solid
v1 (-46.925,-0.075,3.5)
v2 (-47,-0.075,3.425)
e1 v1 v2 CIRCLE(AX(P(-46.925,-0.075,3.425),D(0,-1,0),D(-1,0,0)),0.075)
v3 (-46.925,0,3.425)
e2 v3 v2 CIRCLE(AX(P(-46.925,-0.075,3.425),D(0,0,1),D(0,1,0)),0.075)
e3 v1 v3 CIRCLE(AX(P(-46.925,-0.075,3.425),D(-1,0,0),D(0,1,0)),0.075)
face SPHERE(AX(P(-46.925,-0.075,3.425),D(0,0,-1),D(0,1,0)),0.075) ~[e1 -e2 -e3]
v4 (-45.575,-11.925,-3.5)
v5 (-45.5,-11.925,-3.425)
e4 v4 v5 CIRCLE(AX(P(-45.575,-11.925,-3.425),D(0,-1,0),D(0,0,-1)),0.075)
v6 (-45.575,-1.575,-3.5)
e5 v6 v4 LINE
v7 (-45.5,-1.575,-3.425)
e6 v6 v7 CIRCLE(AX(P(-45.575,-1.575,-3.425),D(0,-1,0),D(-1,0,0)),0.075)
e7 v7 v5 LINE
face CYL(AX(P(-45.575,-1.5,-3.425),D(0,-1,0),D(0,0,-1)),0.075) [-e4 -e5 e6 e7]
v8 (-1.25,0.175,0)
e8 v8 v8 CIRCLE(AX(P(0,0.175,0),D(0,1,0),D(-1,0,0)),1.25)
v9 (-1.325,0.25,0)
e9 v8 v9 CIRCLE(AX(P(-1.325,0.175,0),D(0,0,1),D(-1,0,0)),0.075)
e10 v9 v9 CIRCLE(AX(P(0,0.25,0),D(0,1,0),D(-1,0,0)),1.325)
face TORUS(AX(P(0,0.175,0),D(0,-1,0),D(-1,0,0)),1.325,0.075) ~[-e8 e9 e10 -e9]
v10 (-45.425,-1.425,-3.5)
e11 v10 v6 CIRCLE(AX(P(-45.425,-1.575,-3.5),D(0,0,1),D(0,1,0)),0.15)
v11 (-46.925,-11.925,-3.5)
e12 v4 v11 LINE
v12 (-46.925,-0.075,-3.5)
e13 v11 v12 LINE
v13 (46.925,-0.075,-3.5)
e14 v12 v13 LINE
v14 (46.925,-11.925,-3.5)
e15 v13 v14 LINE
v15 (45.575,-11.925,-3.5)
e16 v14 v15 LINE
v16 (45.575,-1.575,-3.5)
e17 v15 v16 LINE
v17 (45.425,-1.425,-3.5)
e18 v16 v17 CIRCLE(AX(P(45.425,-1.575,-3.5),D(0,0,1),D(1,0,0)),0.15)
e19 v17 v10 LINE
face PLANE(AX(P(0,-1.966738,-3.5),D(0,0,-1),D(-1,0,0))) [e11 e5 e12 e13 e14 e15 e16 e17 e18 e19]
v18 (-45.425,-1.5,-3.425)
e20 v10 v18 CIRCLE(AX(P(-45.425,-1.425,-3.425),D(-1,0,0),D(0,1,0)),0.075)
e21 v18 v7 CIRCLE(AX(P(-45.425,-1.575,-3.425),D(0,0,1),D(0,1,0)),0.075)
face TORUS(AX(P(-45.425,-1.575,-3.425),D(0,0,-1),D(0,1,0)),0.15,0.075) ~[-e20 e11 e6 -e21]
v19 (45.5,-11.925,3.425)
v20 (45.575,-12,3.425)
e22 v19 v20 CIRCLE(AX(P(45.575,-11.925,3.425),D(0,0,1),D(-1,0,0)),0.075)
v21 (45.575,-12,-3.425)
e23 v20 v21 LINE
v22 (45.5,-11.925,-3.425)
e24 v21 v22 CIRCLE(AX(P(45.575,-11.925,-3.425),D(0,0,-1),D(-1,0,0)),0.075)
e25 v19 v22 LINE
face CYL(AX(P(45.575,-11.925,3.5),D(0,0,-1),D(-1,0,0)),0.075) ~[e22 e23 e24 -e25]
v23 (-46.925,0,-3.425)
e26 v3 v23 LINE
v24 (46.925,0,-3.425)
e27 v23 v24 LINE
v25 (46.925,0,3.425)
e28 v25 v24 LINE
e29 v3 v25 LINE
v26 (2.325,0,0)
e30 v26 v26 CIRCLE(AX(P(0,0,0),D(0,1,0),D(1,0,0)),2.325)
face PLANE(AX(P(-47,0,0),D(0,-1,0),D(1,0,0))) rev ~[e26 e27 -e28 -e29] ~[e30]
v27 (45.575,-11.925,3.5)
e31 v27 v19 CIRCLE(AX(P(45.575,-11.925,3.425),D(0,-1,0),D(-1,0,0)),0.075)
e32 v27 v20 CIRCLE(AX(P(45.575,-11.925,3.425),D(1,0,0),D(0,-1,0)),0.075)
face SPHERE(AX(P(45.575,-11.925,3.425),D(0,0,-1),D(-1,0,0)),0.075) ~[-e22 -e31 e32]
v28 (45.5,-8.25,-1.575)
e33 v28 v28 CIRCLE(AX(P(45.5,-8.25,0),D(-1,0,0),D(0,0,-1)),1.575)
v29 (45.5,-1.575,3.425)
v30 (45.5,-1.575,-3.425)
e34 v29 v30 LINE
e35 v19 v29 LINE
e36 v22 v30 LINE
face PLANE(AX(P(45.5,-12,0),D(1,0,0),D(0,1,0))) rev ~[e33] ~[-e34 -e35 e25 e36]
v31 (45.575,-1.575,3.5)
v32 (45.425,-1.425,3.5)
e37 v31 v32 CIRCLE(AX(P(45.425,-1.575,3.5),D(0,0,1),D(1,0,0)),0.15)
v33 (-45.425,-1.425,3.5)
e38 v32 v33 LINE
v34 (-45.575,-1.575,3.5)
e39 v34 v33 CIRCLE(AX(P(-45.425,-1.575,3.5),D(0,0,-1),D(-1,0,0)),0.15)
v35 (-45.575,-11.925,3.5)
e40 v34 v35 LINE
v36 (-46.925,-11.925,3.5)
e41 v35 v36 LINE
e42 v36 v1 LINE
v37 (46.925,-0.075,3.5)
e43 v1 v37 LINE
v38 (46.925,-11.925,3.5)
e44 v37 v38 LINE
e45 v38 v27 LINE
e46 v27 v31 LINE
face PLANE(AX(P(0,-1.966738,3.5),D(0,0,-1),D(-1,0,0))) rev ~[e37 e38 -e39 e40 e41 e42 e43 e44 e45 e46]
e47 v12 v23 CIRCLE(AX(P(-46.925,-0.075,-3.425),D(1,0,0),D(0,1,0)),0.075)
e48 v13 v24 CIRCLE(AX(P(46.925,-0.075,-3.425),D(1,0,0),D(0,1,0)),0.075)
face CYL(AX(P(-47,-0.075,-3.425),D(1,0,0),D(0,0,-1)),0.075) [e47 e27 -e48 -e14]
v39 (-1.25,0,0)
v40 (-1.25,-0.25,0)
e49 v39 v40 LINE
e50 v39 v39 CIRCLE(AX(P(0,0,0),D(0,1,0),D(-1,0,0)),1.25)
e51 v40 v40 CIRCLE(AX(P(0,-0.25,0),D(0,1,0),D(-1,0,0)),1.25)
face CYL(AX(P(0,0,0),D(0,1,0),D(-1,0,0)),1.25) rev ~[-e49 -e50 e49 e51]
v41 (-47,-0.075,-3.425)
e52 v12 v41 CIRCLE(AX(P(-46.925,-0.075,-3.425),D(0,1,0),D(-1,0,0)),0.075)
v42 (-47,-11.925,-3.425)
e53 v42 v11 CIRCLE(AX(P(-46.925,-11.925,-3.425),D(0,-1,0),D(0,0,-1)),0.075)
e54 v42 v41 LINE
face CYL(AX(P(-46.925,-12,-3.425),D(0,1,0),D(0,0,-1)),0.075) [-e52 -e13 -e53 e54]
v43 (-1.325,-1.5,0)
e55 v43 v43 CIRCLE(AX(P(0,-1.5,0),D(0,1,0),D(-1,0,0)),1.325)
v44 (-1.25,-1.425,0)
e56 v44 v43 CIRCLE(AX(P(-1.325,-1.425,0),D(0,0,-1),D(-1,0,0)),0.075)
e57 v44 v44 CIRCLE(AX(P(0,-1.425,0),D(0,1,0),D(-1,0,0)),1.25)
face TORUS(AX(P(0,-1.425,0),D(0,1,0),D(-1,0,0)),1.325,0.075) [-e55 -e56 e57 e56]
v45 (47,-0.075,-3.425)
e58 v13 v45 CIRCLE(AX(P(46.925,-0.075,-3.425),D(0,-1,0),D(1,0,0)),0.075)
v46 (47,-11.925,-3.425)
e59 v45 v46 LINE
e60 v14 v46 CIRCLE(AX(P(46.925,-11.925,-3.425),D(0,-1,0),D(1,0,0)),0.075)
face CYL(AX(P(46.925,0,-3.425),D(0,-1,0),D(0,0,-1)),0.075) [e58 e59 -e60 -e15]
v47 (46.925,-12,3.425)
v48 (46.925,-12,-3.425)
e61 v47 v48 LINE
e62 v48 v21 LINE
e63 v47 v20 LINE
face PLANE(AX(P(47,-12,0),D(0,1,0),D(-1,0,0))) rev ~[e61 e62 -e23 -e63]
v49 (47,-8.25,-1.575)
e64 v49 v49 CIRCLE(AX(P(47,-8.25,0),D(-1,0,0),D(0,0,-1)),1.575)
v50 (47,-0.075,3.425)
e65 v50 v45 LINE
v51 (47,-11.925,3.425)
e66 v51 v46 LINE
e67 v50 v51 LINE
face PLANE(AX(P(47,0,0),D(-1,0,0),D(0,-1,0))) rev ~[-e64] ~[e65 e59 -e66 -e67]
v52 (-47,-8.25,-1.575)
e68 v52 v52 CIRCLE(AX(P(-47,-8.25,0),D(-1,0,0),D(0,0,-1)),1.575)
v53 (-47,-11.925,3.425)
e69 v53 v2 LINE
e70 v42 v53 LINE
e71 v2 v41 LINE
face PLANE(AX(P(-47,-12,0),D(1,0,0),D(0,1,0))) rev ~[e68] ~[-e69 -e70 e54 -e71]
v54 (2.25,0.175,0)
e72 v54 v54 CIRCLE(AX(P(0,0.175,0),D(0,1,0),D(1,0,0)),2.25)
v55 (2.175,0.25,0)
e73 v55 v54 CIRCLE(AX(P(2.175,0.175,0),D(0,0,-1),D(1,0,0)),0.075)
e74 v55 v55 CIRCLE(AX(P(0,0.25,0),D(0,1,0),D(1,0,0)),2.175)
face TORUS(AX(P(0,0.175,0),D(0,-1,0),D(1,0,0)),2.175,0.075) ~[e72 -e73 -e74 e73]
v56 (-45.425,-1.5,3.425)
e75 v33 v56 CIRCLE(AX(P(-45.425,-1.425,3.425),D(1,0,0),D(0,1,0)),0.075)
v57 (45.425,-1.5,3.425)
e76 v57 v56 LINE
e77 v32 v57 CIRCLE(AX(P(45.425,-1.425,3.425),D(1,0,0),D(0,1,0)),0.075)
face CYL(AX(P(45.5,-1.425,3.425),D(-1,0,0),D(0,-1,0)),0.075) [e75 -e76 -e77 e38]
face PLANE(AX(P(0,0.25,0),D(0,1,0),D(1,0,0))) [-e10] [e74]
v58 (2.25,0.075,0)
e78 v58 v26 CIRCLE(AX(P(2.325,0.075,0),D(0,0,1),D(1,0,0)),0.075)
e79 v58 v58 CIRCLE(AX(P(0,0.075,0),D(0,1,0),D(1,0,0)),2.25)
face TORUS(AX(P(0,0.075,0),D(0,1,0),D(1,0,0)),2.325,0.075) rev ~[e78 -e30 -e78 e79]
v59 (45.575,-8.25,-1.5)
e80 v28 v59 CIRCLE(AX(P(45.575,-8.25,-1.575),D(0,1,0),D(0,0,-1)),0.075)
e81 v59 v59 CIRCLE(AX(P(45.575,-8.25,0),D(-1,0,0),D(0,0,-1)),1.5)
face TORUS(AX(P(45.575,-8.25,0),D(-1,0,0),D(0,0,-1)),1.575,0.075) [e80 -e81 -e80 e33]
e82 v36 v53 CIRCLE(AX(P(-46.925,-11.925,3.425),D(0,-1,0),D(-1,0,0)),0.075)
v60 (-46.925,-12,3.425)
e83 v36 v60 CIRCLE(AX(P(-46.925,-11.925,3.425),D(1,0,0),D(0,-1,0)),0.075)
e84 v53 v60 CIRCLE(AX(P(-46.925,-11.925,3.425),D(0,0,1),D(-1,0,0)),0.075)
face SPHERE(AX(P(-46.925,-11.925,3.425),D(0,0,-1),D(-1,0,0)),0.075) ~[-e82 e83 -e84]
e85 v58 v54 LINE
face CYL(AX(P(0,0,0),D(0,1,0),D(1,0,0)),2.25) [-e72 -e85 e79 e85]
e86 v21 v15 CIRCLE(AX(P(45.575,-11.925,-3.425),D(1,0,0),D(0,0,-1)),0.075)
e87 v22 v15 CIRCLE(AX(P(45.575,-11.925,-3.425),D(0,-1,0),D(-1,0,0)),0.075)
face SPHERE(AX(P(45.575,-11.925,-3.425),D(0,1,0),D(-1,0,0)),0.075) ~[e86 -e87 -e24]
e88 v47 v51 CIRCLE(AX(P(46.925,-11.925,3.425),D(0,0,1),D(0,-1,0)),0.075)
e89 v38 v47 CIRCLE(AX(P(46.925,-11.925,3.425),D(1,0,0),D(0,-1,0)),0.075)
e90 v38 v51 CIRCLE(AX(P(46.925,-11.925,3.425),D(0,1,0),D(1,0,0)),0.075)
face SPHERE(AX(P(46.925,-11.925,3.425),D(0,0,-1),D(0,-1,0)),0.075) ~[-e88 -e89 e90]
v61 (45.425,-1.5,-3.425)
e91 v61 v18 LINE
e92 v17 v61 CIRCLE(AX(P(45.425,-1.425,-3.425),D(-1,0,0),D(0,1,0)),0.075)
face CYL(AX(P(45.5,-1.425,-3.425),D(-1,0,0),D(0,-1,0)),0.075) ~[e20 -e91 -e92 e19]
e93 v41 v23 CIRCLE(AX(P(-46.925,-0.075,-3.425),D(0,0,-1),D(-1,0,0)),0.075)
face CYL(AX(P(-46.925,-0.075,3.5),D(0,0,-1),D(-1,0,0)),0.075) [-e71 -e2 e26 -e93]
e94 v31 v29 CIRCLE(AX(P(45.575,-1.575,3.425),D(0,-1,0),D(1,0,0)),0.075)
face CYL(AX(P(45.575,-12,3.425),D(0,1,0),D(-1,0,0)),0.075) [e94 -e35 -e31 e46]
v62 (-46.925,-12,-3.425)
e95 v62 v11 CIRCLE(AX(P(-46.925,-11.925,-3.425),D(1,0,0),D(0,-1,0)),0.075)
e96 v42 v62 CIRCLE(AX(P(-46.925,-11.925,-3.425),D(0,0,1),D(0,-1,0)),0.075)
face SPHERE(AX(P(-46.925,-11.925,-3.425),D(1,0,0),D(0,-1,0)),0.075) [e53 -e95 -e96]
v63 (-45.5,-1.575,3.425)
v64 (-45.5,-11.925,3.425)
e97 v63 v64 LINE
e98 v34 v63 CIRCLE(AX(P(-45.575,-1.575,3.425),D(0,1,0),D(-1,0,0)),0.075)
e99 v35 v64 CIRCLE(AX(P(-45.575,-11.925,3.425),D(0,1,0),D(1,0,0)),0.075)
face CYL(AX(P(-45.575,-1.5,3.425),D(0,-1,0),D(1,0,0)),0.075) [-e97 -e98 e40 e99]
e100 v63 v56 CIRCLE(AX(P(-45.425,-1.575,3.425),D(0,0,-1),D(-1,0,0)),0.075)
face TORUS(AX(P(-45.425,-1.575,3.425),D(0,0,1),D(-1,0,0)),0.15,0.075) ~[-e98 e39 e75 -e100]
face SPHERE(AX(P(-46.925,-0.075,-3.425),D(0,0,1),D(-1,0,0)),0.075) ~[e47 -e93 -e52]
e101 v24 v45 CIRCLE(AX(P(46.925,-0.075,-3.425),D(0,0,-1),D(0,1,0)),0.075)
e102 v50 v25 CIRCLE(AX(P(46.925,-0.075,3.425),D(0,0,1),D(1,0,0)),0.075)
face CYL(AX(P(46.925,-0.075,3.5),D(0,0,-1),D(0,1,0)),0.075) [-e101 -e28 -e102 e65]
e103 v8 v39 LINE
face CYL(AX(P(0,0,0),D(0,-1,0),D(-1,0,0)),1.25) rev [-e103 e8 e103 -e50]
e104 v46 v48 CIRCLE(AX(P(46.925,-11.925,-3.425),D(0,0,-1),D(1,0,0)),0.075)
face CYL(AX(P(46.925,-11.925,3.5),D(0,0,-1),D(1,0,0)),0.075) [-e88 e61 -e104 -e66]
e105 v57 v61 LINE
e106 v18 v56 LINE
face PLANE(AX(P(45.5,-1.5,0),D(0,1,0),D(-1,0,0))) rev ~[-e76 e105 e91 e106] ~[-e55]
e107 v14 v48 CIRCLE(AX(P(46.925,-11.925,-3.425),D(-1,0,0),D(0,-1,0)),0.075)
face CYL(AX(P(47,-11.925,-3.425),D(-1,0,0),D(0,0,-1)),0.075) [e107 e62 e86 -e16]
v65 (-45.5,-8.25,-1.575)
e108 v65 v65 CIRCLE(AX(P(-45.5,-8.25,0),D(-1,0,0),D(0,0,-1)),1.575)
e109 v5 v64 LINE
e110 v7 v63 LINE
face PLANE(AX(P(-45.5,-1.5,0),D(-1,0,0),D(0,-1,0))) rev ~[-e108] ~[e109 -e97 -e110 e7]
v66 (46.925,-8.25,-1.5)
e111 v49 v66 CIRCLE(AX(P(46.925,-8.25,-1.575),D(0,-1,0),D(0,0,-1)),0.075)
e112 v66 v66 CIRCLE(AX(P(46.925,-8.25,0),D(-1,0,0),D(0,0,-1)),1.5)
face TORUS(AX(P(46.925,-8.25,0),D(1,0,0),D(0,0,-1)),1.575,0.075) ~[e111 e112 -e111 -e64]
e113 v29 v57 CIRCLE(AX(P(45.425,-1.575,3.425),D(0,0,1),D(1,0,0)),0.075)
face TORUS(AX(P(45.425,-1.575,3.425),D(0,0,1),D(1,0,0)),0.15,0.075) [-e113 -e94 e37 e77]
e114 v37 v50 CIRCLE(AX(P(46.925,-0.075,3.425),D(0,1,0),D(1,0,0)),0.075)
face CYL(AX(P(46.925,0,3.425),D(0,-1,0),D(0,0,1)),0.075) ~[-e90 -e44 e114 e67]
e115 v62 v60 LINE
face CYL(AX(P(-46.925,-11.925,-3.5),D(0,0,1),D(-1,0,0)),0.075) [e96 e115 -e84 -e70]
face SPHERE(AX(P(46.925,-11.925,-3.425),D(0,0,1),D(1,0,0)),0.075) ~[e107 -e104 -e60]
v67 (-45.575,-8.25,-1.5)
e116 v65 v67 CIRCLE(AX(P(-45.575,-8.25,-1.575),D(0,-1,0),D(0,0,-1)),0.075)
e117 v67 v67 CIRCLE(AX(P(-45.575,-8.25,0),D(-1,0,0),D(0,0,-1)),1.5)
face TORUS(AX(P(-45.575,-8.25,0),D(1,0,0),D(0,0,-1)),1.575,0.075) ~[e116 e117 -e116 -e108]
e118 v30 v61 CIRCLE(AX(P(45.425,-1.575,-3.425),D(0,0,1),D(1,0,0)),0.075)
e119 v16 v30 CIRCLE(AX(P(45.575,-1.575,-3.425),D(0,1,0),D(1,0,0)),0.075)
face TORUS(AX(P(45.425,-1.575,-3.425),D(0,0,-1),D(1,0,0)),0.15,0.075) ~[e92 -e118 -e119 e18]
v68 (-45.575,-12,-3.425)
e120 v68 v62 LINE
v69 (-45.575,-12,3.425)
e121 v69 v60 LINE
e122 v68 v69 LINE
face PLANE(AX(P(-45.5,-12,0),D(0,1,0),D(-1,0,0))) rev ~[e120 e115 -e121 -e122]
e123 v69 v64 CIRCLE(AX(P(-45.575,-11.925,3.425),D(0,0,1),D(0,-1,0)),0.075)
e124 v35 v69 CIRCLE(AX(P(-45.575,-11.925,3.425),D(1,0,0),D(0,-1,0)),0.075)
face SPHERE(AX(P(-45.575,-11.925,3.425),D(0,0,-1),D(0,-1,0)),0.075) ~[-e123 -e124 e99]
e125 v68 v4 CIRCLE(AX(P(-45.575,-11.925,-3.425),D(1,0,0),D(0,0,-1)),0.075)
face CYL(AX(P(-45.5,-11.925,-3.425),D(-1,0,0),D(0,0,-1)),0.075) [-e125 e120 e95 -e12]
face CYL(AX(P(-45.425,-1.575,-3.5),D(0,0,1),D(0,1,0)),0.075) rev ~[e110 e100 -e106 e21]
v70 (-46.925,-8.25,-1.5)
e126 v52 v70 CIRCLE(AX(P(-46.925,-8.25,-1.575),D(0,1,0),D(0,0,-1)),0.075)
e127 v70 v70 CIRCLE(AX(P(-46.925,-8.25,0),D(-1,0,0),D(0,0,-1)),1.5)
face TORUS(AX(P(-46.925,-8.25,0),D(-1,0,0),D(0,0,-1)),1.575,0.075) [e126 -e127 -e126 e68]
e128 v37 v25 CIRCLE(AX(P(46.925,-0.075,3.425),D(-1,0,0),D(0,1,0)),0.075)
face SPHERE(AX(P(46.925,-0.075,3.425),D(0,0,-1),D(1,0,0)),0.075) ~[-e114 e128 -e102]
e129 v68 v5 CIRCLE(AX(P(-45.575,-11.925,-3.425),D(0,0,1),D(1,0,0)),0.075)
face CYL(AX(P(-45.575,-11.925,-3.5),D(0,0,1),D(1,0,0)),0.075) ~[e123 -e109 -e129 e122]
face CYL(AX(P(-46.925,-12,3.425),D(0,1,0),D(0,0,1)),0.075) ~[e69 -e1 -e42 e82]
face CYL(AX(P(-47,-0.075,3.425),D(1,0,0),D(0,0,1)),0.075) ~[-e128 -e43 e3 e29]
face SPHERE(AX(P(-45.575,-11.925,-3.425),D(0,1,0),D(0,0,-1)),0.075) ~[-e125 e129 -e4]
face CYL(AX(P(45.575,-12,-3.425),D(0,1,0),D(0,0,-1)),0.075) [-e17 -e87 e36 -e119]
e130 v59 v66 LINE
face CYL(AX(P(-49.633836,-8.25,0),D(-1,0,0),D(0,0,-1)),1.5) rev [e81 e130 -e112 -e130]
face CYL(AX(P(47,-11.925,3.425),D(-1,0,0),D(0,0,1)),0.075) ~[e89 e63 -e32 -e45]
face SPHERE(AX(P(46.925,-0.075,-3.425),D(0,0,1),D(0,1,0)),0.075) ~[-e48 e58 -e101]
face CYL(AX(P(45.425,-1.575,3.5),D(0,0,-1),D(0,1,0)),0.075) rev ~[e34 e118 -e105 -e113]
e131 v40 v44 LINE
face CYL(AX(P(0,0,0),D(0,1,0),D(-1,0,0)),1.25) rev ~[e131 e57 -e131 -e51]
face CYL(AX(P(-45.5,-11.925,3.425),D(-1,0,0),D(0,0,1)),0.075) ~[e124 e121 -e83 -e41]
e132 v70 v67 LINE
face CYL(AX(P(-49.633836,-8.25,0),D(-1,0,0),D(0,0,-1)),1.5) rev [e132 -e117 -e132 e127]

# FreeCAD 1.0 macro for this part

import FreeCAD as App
import Part
import Sketcher
Q = App.Units.Quantity


def add_polygon(sketch, points):
    """Adds a closed chain of lines whose ends are joined by coincident constraints."""
    first, n = sketch.GeometryCount, len(points)
    for a, b in zip(points, points[1:] + points[:1]):
        sketch.addGeometry(Part.LineSegment(App.Vector(*a, 0), App.Vector(*b, 0)), False)
    for i in range(n):
        sketch.addConstraint(Sketcher.Constraint("Coincident", first + i, 2, first + (i + 1) % n, 1))

doc = App.newDocument("Part")
body = doc.addObject("PartDesign::Body", "Body")

sketch1 = body.newObject("Sketcher::SketchObject", "Sketch")
sketch1.AttachmentSupport = (doc.getObject("XY_Plane"), [""])
sketch1.MapMode = "FlatFace"
add_polygon(sketch1, [(-47, 0), (-47, -12), (-45.5, -12), (-45.5, -1.5), (45.5, -1.5), (45.5, -12), (47, -12), (47, 0)])
sketch1.addConstraint(Sketcher.Constraint("Vertical", 0))
sketch1.addConstraint(Sketcher.Constraint("Horizontal", 1))
sketch1.addConstraint(Sketcher.Constraint("Vertical", 2))
sketch1.addConstraint(Sketcher.Constraint("Horizontal", 3))
sketch1.addConstraint(Sketcher.Constraint("Vertical", 4))
sketch1.addConstraint(Sketcher.Constraint("Horizontal", 5))
sketch1.addConstraint(Sketcher.Constraint("Vertical", 6))
sketch1.addConstraint(Sketcher.Constraint("Horizontal", 7))
sketch1.addConstraint(Sketcher.Constraint("Symmetric", 6, 2, 7, 2, -1, 1))
sketch1.addConstraint(Sketcher.Constraint("Symmetric", 1, 2, 4, 2, -2))
sketch1.addConstraint(Sketcher.Constraint("DistanceX", 3, 1, 3, 2, Q("91 mm")))
sketch1.addConstraint(Sketcher.Constraint("DistanceX", 7, 2, 7, 1, Q("94 mm")))
sketch1.addConstraint(Sketcher.Constraint("DistanceY", 0, 2, 0, 1, Q("12 mm")))
sketch1.addConstraint(Sketcher.Constraint("DistanceY", 2, 1, 2, 2, Q("10.5 mm")))
pad1 = body.newObject("PartDesign::Pad", "Pad")
pad1.Profile = sketch1
pad1.Length = 7
pad1.Midplane = True

sketch2 = body.newObject("Sketcher::SketchObject", "Sketch001")
sketch2.AttachmentSupport = (doc.getObject("XZ_Plane"), [""])
sketch2.MapMode = "FlatFace"
sketch2.addGeometry(Part.Circle(App.Vector(0, 0, 0), App.Vector(0, 0, 1), 1.2), False)
sketch2.addConstraint(Sketcher.Constraint("Coincident", 0, 3, -1, 1))
sketch2.addConstraint(Sketcher.Constraint("Diameter", 0, Q("2.5 mm")))
pocket1 = body.newObject("PartDesign::Pocket", "Pocket")
pocket1.Profile = sketch2
pocket1.Type = "ThroughAll"
pocket1.Reversed = True

sketch3 = body.newObject("Sketcher::SketchObject", "Sketch002")
sketch3.AttachmentSupport = (doc.getObject("XZ_Plane"), [""])
sketch3.MapMode = "FlatFace"
sketch3.addGeometry(Part.Circle(App.Vector(0, 0, 0), App.Vector(0, 0, 1), 2.2), False)
sketch3.addGeometry(Part.Circle(App.Vector(0, 0, 0), App.Vector(0, 0, 1), 1.2), False)
sketch3.addConstraint(Sketcher.Constraint("Coincident", 0, 3, -1, 1))
sketch3.addConstraint(Sketcher.Constraint("Coincident", 1, 3, -1, 1))
sketch3.addConstraint(Sketcher.Constraint("Diameter", 0, Q("4.5 mm")))
sketch3.addConstraint(Sketcher.Constraint("Diameter", 1, Q("2.5 mm")))
pad2 = body.newObject("PartDesign::Pad", "Pad001")
pad2.Profile = sketch3
pad2.Length = 0.5
pad2.Midplane = True

sketch4 = body.newObject("Sketcher::SketchObject", "Sketch003")
sketch4.AttachmentSupport = (doc.getObject("YZ_Plane"), [""])
sketch4.MapMode = "FlatFace"
sketch4.addGeometry(Part.Circle(App.Vector(-8.2, 0, 0), App.Vector(0, 0, 1), 1.5), False)
sketch4.addConstraint(Sketcher.Constraint("PointOnObject", 0, 3, -1))
sketch4.addConstraint(Sketcher.Constraint("Diameter", 0, Q("3 mm")))
sketch4.addConstraint(Sketcher.Constraint("DistanceX", 0, 3, -1, 1, Q("8.25 mm")))
pocket2 = body.newObject("PartDesign::Pocket", "Pocket001")
pocket2.Profile = sketch4
pocket2.Type = "ThroughAll"
pocket2.Midplane = True
doc.recompute()

fillet = body.newObject("PartDesign::Fillet", "Fillet")
fillet.Base = (pocket2, ["Edge1"])
fillet.UseAllEdges = True
fillet.Radius = 0.075

doc.recompute()
